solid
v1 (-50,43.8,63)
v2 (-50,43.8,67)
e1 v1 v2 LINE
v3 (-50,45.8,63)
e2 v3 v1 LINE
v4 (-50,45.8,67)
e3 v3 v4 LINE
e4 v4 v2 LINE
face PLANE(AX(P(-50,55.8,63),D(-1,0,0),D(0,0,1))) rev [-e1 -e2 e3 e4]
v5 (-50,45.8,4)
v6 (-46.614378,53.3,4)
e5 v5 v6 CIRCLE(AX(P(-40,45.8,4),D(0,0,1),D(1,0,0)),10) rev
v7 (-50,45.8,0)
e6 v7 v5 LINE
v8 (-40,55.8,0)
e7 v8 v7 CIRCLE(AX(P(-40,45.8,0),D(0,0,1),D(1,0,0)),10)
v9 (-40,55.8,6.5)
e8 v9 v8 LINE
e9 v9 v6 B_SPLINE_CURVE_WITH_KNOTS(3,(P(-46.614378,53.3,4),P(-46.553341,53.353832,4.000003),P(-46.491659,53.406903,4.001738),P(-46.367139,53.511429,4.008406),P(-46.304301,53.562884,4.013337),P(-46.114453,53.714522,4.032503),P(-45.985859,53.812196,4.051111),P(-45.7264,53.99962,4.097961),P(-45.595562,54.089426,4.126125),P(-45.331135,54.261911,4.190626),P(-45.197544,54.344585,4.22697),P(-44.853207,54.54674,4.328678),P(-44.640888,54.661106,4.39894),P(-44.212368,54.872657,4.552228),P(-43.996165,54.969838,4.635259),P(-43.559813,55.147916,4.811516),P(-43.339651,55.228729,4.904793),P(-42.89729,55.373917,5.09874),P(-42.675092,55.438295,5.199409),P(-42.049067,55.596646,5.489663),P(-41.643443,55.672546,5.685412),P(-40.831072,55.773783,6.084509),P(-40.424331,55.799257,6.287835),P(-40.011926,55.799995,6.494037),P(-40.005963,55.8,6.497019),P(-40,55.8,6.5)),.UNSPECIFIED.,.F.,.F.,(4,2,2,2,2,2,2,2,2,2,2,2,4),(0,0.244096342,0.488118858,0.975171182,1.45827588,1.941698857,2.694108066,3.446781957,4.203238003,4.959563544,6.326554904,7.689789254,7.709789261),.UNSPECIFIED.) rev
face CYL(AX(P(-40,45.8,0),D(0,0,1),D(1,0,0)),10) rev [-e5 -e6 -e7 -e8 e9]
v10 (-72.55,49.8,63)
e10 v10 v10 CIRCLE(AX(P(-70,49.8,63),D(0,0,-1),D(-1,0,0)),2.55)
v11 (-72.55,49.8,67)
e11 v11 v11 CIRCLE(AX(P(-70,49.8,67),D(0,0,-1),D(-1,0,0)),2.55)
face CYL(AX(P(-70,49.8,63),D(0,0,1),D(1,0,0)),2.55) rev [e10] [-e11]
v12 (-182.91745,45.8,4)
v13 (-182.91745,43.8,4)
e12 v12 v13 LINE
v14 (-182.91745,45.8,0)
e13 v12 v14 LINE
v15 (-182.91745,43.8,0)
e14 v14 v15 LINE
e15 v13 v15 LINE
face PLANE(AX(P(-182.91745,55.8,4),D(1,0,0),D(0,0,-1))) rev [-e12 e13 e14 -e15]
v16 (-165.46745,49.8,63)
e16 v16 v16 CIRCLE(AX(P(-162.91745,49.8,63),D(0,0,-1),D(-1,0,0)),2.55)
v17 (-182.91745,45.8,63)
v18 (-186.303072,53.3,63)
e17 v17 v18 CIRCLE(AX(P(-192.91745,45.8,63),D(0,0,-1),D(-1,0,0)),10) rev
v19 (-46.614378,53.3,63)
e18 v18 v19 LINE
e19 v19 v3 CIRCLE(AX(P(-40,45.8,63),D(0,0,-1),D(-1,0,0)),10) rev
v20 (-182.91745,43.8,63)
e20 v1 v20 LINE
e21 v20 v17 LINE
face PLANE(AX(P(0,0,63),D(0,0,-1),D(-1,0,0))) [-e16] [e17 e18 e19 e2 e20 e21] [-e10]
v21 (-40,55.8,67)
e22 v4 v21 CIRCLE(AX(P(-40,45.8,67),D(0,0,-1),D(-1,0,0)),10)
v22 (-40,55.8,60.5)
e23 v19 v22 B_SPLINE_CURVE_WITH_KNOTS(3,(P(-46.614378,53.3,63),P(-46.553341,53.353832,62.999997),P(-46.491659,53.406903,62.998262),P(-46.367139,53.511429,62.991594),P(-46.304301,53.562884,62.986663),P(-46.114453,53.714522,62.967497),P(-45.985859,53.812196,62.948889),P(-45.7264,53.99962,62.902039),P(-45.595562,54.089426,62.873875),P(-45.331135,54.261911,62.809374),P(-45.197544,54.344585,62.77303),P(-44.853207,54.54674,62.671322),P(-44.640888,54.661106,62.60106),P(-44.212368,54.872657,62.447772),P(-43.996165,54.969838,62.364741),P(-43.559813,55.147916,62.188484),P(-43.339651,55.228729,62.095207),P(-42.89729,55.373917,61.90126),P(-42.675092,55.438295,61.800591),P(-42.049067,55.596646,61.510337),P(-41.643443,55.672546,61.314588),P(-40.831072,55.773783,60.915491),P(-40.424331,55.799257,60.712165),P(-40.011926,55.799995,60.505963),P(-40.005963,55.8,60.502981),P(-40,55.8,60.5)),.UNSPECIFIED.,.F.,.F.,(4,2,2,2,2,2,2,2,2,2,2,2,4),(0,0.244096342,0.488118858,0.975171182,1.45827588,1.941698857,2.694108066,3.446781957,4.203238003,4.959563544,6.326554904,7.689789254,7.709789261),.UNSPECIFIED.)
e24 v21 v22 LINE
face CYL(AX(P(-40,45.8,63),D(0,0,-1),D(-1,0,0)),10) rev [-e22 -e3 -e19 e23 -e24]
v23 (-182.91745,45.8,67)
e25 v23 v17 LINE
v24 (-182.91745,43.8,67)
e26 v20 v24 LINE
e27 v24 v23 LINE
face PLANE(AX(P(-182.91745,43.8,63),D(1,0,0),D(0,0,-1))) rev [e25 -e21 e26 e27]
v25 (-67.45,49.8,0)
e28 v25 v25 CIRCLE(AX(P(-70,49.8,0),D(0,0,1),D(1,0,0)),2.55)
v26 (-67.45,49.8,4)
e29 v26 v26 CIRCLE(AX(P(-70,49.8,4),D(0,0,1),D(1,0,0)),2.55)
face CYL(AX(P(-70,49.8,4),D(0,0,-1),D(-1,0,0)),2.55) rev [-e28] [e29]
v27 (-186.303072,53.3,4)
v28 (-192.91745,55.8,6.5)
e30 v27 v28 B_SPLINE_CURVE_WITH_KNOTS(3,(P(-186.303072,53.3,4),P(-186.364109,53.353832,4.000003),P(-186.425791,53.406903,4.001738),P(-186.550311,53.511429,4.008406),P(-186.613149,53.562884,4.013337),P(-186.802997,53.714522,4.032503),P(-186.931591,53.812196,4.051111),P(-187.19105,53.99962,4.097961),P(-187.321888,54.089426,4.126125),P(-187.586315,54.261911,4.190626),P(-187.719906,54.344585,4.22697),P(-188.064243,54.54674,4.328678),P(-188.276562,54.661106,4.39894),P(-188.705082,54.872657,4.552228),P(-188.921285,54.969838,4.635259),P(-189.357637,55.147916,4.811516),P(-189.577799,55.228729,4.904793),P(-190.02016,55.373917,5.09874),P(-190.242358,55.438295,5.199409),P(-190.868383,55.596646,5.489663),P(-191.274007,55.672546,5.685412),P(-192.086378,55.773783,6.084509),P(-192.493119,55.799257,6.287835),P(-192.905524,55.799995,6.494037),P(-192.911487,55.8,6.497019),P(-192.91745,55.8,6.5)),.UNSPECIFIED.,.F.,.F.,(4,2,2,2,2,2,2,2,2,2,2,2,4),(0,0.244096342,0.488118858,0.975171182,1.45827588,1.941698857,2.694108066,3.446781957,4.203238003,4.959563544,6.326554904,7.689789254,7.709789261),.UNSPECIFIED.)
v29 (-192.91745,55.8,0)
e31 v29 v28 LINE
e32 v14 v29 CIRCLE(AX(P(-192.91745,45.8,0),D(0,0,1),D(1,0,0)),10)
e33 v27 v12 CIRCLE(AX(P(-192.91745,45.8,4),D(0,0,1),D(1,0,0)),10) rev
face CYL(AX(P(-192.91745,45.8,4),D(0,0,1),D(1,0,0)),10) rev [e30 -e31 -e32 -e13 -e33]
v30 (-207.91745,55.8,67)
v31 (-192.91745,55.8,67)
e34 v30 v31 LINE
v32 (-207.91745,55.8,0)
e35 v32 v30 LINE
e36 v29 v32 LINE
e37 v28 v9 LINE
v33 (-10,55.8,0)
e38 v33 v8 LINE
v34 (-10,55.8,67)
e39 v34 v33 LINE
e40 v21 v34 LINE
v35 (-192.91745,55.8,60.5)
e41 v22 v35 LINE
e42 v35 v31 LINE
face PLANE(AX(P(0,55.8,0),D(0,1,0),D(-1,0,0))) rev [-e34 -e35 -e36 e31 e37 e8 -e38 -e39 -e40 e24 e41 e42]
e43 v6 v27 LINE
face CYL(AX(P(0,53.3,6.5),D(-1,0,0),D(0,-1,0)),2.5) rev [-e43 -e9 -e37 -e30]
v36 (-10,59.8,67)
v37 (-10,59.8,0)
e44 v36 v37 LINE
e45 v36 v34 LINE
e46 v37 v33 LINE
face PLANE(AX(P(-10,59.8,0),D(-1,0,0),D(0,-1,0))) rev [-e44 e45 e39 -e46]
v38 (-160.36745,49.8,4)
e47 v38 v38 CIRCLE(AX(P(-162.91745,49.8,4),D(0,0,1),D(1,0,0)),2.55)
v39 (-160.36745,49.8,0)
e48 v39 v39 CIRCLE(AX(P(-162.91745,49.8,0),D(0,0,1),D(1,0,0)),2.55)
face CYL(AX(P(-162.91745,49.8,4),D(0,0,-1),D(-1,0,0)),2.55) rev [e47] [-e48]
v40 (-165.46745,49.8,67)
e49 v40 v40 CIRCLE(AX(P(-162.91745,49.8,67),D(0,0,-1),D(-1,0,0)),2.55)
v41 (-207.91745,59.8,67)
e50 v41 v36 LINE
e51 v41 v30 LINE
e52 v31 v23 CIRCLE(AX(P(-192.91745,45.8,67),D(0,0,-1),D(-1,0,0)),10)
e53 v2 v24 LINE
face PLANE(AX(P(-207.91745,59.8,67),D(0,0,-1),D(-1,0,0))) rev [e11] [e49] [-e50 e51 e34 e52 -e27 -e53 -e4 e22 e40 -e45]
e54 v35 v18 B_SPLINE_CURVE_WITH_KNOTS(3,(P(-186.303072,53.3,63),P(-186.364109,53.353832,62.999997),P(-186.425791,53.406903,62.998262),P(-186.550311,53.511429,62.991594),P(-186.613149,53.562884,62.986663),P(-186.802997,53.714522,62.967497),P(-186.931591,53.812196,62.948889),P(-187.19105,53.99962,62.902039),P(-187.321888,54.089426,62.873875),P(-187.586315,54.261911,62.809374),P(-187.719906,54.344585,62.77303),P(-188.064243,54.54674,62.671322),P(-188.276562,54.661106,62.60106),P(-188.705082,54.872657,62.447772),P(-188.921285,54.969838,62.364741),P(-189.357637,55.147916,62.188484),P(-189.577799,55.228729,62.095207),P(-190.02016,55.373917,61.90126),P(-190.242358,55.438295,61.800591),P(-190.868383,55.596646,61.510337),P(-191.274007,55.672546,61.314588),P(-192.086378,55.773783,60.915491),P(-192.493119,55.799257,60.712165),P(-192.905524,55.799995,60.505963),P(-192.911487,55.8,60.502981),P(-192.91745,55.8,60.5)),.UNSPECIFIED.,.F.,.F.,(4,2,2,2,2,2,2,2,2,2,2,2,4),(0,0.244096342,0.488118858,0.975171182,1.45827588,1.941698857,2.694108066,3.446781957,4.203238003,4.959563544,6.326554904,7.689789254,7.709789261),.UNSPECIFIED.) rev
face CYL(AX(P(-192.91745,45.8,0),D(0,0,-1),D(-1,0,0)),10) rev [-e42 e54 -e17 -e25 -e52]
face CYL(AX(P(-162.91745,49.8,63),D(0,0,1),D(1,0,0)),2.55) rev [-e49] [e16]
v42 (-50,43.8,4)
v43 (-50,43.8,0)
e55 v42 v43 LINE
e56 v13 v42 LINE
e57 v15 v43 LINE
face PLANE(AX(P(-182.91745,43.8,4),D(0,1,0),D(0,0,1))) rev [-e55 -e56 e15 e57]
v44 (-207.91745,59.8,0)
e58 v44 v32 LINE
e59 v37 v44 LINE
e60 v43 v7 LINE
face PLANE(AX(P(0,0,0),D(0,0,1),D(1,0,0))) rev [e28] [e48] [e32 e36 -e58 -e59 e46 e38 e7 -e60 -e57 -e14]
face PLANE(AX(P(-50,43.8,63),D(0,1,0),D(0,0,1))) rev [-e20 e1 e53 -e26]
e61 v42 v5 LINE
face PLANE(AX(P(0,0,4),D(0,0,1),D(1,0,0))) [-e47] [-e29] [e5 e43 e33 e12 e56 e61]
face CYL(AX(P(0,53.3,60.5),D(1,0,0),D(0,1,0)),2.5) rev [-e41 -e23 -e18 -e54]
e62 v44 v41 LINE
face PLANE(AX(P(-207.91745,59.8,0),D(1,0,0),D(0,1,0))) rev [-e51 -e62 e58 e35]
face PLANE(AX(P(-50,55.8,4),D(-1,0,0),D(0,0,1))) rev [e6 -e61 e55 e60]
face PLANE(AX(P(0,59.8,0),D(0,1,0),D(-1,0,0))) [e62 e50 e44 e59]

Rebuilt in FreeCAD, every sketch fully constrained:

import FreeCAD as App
import Part
import Sketcher

V = App.Vector
Q = App.Units.Quantity


def edges_at(feature, points):
    """Names of the edges that pass closest to the given points."""
    edges = feature.Shape.Edges
    near = lambda p: min(range(len(edges)), key=lambda i: edges[i].distToShape(Part.Vertex(*p))[0])
    return sorted({f"Edge{near(p) + 1}" for p in points})


def add_polygon(sketch, points):
    """Adds a closed chain of lines whose ends are joined by coincident constraints."""
    first, n = sketch.GeometryCount, len(points)
    for a, b in zip(points, points[1:] + points[:1]):
        sketch.addGeometry(Part.LineSegment(App.Vector(*a, 0), App.Vector(*b, 0)), False)
    for i in range(n):
        sketch.addConstraint(Sketcher.Constraint("Coincident", first + i, 2, first + (i + 1) % n, 1))

doc = App.newDocument("Part")
body = doc.addObject("PartDesign::Body", "Body")

sketch1 = body.newObject("Sketcher::SketchObject", "Sketch")
sketch1.AttachmentSupport = (doc.getObject("XY_Plane"), [""])
sketch1.MapMode = "FlatFace"
add_polygon(sketch1, [(-182.9, 55.8), (-182.9, 43.8), (-50, 43.8), (-50, 55.8)])
sketch1.addGeometry(Part.Circle(V(-162.9, 49.8, 0), V(0, 0, 1), 2.5), False)
sketch1.addGeometry(Part.Circle(V(-70, 49.8, 0), V(0, 0, 1), 2.5), False)
sketch1.addConstraint(Sketcher.Constraint("Vertical", 0))
sketch1.addConstraint(Sketcher.Constraint("Horizontal", 1))
sketch1.addConstraint(Sketcher.Constraint("Vertical", 2))
sketch1.addConstraint(Sketcher.Constraint("Horizontal", 3))
sketch1.addConstraint(Sketcher.Constraint("Equal", 4, 5))
sketch1.addConstraint(Sketcher.Constraint("Horizontal", 4, 3, 5, 3))
sketch1.addConstraint(Sketcher.Constraint("Diameter", 4, Q("5.1 mm")))
sketch1.addConstraint(Sketcher.Constraint("DistanceY", 0, 2, 0, 1, Q("12 mm")))
sketch1.addConstraint(Sketcher.Constraint("DistanceX", 5, 3, -1, 1, Q("70 mm")))
sketch1.addConstraint(Sketcher.Constraint("DistanceX", 1, 2, -1, 1, Q("50 mm")))
sketch1.addConstraint(Sketcher.Constraint("DistanceX", 0, 2, 4, 3, Q("20 mm")))
sketch1.addConstraint(Sketcher.Constraint("DistanceY", 0, 2, 4, 3, Q("6 mm")))
sketch1.addConstraint(Sketcher.Constraint("DistanceY", -1, 1, 4, 3, Q("49.8 mm")))
sketch1.addConstraint(Sketcher.Constraint("DistanceX", 1, 1, 1, 2, Q("132.91745 mm")))
pad1 = body.newObject("PartDesign::Pad", "Pad")
pad1.Profile = sketch1
pad1.Length = 4

sketch2 = body.newObject("Sketcher::SketchObject", "Sketch001")
sketch2.AttachmentSupport = (doc.getObject("XZ_Plane"), [""])
sketch2.MapMode = "FlatFace"
sketch2.AttachmentOffset = App.Placement(V(0, 0, -55.8), App.Rotation())
add_polygon(sketch2, [(-208, 0), (-208, 67), (-10, 67), (-10, 0)])
sketch2.addConstraint(Sketcher.Constraint("Vertical", 0))
sketch2.addConstraint(Sketcher.Constraint("Horizontal", 1))
sketch2.addConstraint(Sketcher.Constraint("Vertical", 2))
sketch2.addConstraint(Sketcher.Constraint("Horizontal", 3))
sketch2.addConstraint(Sketcher.Constraint("PointOnObject", 2, 2, -1))
sketch2.addConstraint(Sketcher.Constraint("DistanceY", 0, 1, 0, 2, Q("67 mm")))
sketch2.addConstraint(Sketcher.Constraint("DistanceX", 1, 2, -1, 1, Q("10 mm")))
sketch2.addConstraint(Sketcher.Constraint("DistanceX", 1, 1, 1, 2, Q("197.91745 mm")))
pad2 = body.newObject("PartDesign::Pad", "Pad001")
pad2.Profile = sketch2
pad2.Length = 4
pad2.Reversed = True

sketch3 = body.newObject("Sketcher::SketchObject", "Sketch002")
sketch3.AttachmentSupport = (doc.getObject("XY_Plane"), [""])
sketch3.MapMode = "FlatFace"
sketch3.AttachmentOffset = App.Placement(V(0, 0, 63), App.Rotation())
add_polygon(sketch3, [(-50, 55.8), (-50, 43.8), (-182.9, 43.8), (-182.9, 55.8)])
sketch3.addGeometry(Part.Circle(V(-70, 49.8, 0), V(0, 0, 1), 2.5), False)
sketch3.addGeometry(Part.Circle(V(-162.9, 49.8, 0), V(0, 0, 1), 2.5), False)
sketch3.addConstraint(Sketcher.Constraint("Vertical", 0))
sketch3.addConstraint(Sketcher.Constraint("Horizontal", 1))
sketch3.addConstraint(Sketcher.Constraint("Vertical", 2))
sketch3.addConstraint(Sketcher.Constraint("Horizontal", 3))
sketch3.addConstraint(Sketcher.Constraint("Equal", 4, 5))
sketch3.addConstraint(Sketcher.Constraint("Horizontal", 4, 3, 5, 3))
sketch3.addConstraint(Sketcher.Constraint("Diameter", 4, Q("5.1 mm")))
sketch3.addConstraint(Sketcher.Constraint("DistanceY", 0, 2, 0, 1, Q("12 mm")))
sketch3.addConstraint(Sketcher.Constraint("DistanceX", 4, 3, -1, 1, Q("70 mm")))
sketch3.addConstraint(Sketcher.Constraint("DistanceX", 0, 2, -1, 1, Q("50 mm")))
sketch3.addConstraint(Sketcher.Constraint("DistanceY", 0, 2, 4, 3, Q("6 mm")))
sketch3.addConstraint(Sketcher.Constraint("DistanceX", 1, 2, 5, 3, Q("20 mm")))
sketch3.addConstraint(Sketcher.Constraint("DistanceY", -1, 1, 4, 3, Q("49.8 mm")))
sketch3.addConstraint(Sketcher.Constraint("DistanceX", 1, 2, 1, 1, Q("132.91745 mm")))
pad3 = body.newObject("PartDesign::Pad", "Pad002")
pad3.Profile = sketch3
pad3.Length = 4
doc.recompute()

fillet = body.newObject("PartDesign::Fillet", "Fillet")
fillet.Base = (pad3, edges_at(pad3, [
    (-182.917, 55.8, 65),
    (-50, 55.8, 65),
    (-182.917, 55.8, 2),
    (-50, 55.8, 2),
]))
fillet.Radius = 10
doc.recompute()

fillet2 = body.newObject("PartDesign::Fillet", "Fillet001")
fillet2.Base = (fillet, edges_at(fillet, [(-116.459, 55.8, 4), (-116.459, 55.8, 63)]))
fillet2.Radius = 2.5

doc.recompute()
